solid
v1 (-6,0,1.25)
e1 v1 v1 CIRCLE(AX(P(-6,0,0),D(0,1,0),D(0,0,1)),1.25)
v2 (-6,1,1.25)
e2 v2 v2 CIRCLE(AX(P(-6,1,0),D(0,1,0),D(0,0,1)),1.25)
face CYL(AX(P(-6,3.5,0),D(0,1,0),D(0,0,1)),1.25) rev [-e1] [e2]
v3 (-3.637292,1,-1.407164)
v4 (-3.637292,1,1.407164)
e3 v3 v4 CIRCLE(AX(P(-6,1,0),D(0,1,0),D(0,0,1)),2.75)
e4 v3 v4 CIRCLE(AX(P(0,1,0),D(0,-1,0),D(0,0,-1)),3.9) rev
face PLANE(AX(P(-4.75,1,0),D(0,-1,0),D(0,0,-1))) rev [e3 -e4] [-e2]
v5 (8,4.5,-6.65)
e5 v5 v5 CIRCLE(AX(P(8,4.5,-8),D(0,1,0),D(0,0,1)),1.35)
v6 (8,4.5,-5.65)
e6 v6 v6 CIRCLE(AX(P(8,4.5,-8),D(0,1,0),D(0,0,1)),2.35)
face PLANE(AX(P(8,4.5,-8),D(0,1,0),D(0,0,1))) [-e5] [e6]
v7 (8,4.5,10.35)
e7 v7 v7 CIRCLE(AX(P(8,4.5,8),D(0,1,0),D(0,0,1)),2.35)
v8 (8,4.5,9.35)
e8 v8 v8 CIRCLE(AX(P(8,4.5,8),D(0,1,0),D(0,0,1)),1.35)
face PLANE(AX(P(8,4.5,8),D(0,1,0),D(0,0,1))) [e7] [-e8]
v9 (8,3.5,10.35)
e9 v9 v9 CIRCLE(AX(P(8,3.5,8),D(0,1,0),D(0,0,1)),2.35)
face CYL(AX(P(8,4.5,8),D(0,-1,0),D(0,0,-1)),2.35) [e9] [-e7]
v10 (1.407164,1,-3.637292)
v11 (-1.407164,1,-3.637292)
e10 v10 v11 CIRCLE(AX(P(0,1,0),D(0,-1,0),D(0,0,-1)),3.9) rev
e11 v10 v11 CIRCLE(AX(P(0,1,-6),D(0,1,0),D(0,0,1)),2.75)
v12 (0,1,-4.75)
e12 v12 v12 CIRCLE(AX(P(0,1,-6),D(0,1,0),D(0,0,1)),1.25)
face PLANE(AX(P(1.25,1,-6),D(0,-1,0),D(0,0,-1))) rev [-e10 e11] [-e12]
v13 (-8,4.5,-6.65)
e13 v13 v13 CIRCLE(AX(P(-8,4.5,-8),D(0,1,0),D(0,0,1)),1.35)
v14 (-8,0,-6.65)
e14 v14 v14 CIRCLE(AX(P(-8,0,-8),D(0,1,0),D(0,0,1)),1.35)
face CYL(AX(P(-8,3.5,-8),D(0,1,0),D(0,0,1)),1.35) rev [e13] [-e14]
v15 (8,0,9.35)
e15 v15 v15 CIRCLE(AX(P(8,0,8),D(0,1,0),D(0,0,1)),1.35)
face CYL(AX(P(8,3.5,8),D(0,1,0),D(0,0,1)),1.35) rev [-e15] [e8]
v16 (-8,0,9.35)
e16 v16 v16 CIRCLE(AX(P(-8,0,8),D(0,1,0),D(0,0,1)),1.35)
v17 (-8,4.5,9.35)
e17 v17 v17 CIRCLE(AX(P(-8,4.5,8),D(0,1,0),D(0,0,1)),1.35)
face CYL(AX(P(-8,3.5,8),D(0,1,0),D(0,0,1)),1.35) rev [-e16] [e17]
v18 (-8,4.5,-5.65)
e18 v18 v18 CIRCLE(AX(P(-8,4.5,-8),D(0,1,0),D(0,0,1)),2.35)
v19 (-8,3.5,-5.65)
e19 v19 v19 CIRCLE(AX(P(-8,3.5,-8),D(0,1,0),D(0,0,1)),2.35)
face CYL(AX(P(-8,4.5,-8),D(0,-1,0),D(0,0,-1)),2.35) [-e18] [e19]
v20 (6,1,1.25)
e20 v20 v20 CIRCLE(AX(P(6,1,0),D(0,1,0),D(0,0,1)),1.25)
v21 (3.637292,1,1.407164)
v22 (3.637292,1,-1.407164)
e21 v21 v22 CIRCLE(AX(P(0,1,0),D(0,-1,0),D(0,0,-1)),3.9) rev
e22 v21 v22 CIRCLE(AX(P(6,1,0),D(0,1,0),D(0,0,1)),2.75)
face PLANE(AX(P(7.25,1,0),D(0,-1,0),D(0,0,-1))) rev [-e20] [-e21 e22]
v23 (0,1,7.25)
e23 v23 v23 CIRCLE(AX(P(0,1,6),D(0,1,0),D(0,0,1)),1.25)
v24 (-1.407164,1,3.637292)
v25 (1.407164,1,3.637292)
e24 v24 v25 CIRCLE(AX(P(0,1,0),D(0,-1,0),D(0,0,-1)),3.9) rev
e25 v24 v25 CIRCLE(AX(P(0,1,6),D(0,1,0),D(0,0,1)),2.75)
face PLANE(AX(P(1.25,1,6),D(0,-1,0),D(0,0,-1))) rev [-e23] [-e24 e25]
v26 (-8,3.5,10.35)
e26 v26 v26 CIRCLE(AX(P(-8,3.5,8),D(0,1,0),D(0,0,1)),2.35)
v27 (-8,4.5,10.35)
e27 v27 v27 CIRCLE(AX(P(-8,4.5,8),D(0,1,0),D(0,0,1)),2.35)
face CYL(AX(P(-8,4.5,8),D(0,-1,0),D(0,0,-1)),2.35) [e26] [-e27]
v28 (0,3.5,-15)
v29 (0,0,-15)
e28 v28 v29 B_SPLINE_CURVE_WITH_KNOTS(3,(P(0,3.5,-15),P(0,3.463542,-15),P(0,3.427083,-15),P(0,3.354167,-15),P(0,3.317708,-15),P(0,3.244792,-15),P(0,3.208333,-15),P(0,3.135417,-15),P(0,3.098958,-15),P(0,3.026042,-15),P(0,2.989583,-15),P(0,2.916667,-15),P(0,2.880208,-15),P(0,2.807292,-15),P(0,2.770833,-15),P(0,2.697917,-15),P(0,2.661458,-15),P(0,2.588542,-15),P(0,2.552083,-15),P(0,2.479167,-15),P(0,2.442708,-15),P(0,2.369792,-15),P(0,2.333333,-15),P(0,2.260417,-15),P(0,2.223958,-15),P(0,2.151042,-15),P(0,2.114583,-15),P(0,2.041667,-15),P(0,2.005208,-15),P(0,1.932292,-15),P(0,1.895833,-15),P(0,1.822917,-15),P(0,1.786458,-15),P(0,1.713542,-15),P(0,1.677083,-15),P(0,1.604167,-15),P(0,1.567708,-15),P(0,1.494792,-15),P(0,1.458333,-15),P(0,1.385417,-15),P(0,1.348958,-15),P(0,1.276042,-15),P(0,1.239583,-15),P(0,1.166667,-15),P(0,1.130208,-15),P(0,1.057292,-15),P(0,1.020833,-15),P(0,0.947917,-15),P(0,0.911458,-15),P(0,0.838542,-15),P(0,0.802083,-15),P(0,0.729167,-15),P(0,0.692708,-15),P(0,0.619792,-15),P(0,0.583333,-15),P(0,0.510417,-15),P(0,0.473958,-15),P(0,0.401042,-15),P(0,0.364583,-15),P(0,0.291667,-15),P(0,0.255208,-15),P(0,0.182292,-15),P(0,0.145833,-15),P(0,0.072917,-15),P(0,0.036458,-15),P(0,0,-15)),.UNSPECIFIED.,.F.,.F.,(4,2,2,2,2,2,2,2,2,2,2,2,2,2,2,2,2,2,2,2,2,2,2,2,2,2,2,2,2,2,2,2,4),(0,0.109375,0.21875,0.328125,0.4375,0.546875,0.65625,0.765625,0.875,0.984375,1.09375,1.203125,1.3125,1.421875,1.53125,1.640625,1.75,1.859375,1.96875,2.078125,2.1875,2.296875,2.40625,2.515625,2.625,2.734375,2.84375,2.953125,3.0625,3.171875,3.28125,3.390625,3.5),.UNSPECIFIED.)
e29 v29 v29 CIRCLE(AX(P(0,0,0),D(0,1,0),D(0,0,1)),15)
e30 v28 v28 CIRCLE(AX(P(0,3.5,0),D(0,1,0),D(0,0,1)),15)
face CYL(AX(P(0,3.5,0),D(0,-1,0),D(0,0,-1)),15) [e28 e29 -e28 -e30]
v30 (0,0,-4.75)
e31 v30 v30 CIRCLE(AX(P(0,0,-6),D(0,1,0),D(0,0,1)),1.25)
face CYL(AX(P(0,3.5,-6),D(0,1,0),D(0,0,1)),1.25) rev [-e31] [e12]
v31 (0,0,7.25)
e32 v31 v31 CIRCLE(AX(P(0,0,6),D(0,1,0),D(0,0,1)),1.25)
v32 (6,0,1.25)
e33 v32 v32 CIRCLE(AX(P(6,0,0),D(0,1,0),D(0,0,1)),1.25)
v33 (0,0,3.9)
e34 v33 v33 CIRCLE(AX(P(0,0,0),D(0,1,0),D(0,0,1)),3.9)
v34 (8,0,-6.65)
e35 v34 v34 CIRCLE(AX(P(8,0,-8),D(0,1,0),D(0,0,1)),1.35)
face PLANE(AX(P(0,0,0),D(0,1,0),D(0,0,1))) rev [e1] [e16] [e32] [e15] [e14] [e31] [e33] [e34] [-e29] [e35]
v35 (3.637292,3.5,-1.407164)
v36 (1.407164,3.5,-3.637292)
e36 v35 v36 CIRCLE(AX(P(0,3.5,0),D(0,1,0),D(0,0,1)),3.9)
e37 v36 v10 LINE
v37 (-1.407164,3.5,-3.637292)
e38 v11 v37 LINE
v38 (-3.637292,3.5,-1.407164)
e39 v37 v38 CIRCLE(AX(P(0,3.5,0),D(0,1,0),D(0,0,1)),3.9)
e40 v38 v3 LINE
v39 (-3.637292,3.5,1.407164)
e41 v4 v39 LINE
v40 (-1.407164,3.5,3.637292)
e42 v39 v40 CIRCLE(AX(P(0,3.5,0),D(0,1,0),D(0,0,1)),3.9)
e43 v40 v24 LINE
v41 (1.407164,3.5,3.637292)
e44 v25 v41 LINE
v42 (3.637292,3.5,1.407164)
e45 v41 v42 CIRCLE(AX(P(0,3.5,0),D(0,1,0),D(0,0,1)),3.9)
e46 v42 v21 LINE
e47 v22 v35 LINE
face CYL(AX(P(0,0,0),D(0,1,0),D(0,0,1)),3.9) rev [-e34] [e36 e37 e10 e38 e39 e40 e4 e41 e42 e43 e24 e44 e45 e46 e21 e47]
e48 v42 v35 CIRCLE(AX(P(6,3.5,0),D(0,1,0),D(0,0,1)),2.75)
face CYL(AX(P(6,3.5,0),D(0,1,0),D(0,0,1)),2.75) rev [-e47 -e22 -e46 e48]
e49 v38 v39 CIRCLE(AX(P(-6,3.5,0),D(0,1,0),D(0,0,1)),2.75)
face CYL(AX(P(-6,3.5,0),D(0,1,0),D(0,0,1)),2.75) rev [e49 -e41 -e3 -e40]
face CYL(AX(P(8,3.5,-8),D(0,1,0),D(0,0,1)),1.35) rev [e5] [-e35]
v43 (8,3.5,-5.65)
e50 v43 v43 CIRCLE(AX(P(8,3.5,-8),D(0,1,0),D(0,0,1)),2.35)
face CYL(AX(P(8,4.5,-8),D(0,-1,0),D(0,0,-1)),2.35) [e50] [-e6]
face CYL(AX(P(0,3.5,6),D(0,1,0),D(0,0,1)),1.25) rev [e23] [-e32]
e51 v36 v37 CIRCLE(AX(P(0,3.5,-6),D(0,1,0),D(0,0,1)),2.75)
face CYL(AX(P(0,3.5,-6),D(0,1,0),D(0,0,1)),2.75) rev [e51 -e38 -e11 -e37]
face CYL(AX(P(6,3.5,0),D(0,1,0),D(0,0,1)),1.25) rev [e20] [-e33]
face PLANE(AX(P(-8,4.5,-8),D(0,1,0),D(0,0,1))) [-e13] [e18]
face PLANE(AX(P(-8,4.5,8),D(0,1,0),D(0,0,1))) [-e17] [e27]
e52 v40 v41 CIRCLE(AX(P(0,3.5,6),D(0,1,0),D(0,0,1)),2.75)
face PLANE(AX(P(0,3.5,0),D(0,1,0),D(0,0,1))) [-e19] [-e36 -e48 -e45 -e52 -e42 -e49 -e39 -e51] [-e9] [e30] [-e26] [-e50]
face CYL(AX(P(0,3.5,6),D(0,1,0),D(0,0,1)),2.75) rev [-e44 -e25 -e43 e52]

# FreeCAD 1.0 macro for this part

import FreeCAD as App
import Part
import Sketcher

doc = App.newDocument("Part")
params = doc.addObject("Spreadsheet::Sheet", "Params")
for row, (alias, value) in enumerate([
    ("sketch1_diameter", "30 mm"),
    ("pad1_length", "3.5 mm"),
    ("sketch2_diameter", "7.8 mm"),
    ("sketch3_diameter", "2.5 mm"),
    ("hole_diameter", "2.5 mm"),
    ("hole_cbore_diameter", "5.5 mm"),
    ("hole_cbore_depth", "2.5 mm"),
    ("sketch4_diameter", "2.7 mm"),
    ("hole2_diameter", "2.7 mm"),
    ("sketch5_diameter", "4.7 mm"),
    ("sketch5_diameter2", "2.7 mm"),
    ("pad2_length", "1 mm"),
], start=1):
    params.set(f"A{row}", alias)
    params.set(f"B{row}", "=" + value)
    params.setAlias(f"B{row}", alias)

body = doc.addObject("PartDesign::Body", "Body")

sketch1 = body.newObject("Sketcher::SketchObject", "Sketch")
sketch1.AttachmentSupport = (doc.getObject("XZ_Plane"), [""])
sketch1.MapMode = "FlatFace"
sketch1.addGeometry(Part.Circle(App.Vector(0, 0, 0), App.Vector(0, 0, 1), 15), False)
sketch1.addConstraint(Sketcher.Constraint("Coincident", 0, 3, -1, 1))
sketch1.addConstraint(Sketcher.Constraint("Diameter", 0, 30.0))
sketch1.setExpression("Constraints[1]", "Params.sketch1_diameter")
pad1 = body.newObject("PartDesign::Pad", "Pad")
pad1.Profile = sketch1
pad1.setExpression("Length", "Params.pad1_length")
pad1.Reversed = True

sketch2 = body.newObject("Sketcher::SketchObject", "Sketch001")
sketch2.AttachmentSupport = (doc.getObject("XZ_Plane"), [""])
sketch2.MapMode = "FlatFace"
sketch2.AttachmentOffset = App.Placement(App.Vector(0, 0, -3.5), App.Rotation())
sketch2.addGeometry(Part.Circle(App.Vector(0, 0, 0), App.Vector(0, 0, 1), 3.9), False)
sketch2.addConstraint(Sketcher.Constraint("Coincident", 0, 3, -1, 1))
sketch2.addConstraint(Sketcher.Constraint("Diameter", 0, 7.8))
sketch2.setExpression("Constraints[1]", "Params.sketch2_diameter")
pocket1 = body.newObject("PartDesign::Pocket", "Pocket")
pocket1.Profile = sketch2
pocket1.Type = "ThroughAll"
pocket1.Reversed = True

sketch3 = body.newObject("Sketcher::SketchObject", "Sketch002")
sketch3.AttachmentSupport = (doc.getObject("XZ_Plane"), [""])
sketch3.MapMode = "FlatFace"
sketch3.AttachmentOffset = App.Placement(App.Vector(0, 0, -3.5), App.Rotation())
sketch3.addGeometry(Part.Circle(App.Vector(-6, 0, 0), App.Vector(0, 0, 1), 1.2), False)
sketch3.addGeometry(Part.Circle(App.Vector(0, -6, 0), App.Vector(0, 0, 1), 1.2), False)
sketch3.addGeometry(Part.Circle(App.Vector(6, 0, 0), App.Vector(0, 0, 1), 1.2), False)
sketch3.addGeometry(Part.Circle(App.Vector(0, 6, 0), App.Vector(0, 0, 1), 1.2), False)
sketch3.addConstraint(Sketcher.Constraint("Equal", 0, 1))
sketch3.addConstraint(Sketcher.Constraint("Equal", 1, 2))
sketch3.addConstraint(Sketcher.Constraint("Equal", 2, 3))
sketch3.addConstraint(Sketcher.Constraint("Symmetric", 0, 3, 2, 3, -1, 1))
sketch3.addConstraint(Sketcher.Constraint("Symmetric", 1, 3, 3, 3, -1, 1))
sketch3.addConstraint(Sketcher.Constraint("PointOnObject", 0, 3, -1))
sketch3.addConstraint(Sketcher.Constraint("PointOnObject", 1, 3, -2))
sketch3.addConstraint(Sketcher.Constraint("Diameter", 0, 2.5))
sketch3.addConstraint(Sketcher.Constraint("DistanceX", 0, 3, -1, 1, 6.0))
sketch3.addConstraint(Sketcher.Constraint("DistanceY", 1, 3, -1, 1, 6.0))
sketch3.setExpression("Constraints[7]", "Params.sketch3_diameter")
doc.recompute()
hole = body.newObject("PartDesign::Hole", "Hole")
hole.Profile = sketch3
hole.ThreadType = "None"
hole.setExpression("Diameter", "Params.hole_diameter")
hole.DepthType = "ThroughAll"
hole.HoleCutType = "Counterbore"
hole.setExpression("HoleCutDiameter", "Params.hole_cbore_diameter")
hole.setExpression("HoleCutDepth", "Params.hole_cbore_depth")
hole.Reversed = True

sketch4 = body.newObject("Sketcher::SketchObject", "Sketch003")
sketch4.AttachmentSupport = (doc.getObject("XZ_Plane"), [""])
sketch4.MapMode = "FlatFace"
sketch4.AttachmentOffset = App.Placement(App.Vector(0, 0, -3.5), App.Rotation())
sketch4.addGeometry(Part.Circle(App.Vector(-8, -8, 0), App.Vector(0, 0, 1), 1.4), False)
sketch4.addGeometry(Part.Circle(App.Vector(8, -8, 0), App.Vector(0, 0, 1), 1.4), False)
sketch4.addGeometry(Part.Circle(App.Vector(8, 8, 0), App.Vector(0, 0, 1), 1.4), False)
sketch4.addGeometry(Part.Circle(App.Vector(-8, 8, 0), App.Vector(0, 0, 1), 1.4), False)
sketch4.addConstraint(Sketcher.Constraint("Equal", 0, 1))
sketch4.addConstraint(Sketcher.Constraint("Equal", 1, 2))
sketch4.addConstraint(Sketcher.Constraint("Equal", 2, 3))
sketch4.addConstraint(Sketcher.Constraint("Symmetric", 0, 3, 2, 3, -1, 1))
sketch4.addConstraint(Sketcher.Constraint("Symmetric", 1, 3, 3, 3, -1, 1))
sketch4.addConstraint(Sketcher.Constraint("Symmetric", 0, 3, 1, 3, -2))
sketch4.addConstraint(Sketcher.Constraint("Diameter", 0, 2.7))
sketch4.addConstraint(Sketcher.Constraint("DistanceX", 0, 3, -1, 1, 8.0))
sketch4.addConstraint(Sketcher.Constraint("DistanceY", 0, 3, -1, 1, 8.0))
sketch4.setExpression("Constraints[6]", "Params.sketch4_diameter")
doc.recompute()
hole2 = body.newObject("PartDesign::Hole", "Hole001")
hole2.Profile = sketch4
hole2.ThreadType = "None"
hole2.setExpression("Diameter", "Params.hole2_diameter")
hole2.DepthType = "ThroughAll"
hole2.Reversed = True

sketch5 = body.newObject("Sketcher::SketchObject", "Sketch004")
sketch5.AttachmentSupport = (doc.getObject("XZ_Plane"), [""])
sketch5.MapMode = "FlatFace"
sketch5.AttachmentOffset = App.Placement(App.Vector(0, 0, -3.5), App.Rotation())
sketch5.addGeometry(Part.Circle(App.Vector(8, 8, 0), App.Vector(0, 0, 1), 2.4), False)
sketch5.addGeometry(Part.Circle(App.Vector(8, 8, 0), App.Vector(0, 0, 1), 1.4), False)
sketch5.addGeometry(Part.Circle(App.Vector(8, -8, 0), App.Vector(0, 0, 1), 2.4), False)
sketch5.addGeometry(Part.Circle(App.Vector(8, -8, 0), App.Vector(0, 0, 1), 1.4), False)
sketch5.addGeometry(Part.Circle(App.Vector(-8, 8, 0), App.Vector(0, 0, 1), 2.4), False)
sketch5.addGeometry(Part.Circle(App.Vector(-8, 8, 0), App.Vector(0, 0, 1), 1.4), False)
sketch5.addGeometry(Part.Circle(App.Vector(-8, -8, 0), App.Vector(0, 0, 1), 2.4), False)
sketch5.addGeometry(Part.Circle(App.Vector(-8, -8, 0), App.Vector(0, 0, 1), 1.4), False)
sketch5.addConstraint(Sketcher.Constraint("Coincident", 1, 3, 0, 3))
sketch5.addConstraint(Sketcher.Constraint("Coincident", 3, 3, 2, 3))
sketch5.addConstraint(Sketcher.Constraint("Coincident", 5, 3, 4, 3))
sketch5.addConstraint(Sketcher.Constraint("Coincident", 7, 3, 6, 3))
sketch5.addConstraint(Sketcher.Constraint("Equal", 0, 2))
sketch5.addConstraint(Sketcher.Constraint("Equal", 1, 3))
sketch5.addConstraint(Sketcher.Constraint("Equal", 2, 4))
sketch5.addConstraint(Sketcher.Constraint("Equal", 3, 5))
sketch5.addConstraint(Sketcher.Constraint("Equal", 4, 6))
sketch5.addConstraint(Sketcher.Constraint("Equal", 5, 7))
sketch5.addConstraint(Sketcher.Constraint("Symmetric", 2, 3, 4, 3, -1, 1))
sketch5.addConstraint(Sketcher.Constraint("Symmetric", 0, 3, 6, 3, -1, 1))
sketch5.addConstraint(Sketcher.Constraint("Symmetric", 0, 3, 4, 3, -2))
sketch5.addConstraint(Sketcher.Constraint("Diameter", 0, 4.7))
sketch5.addConstraint(Sketcher.Constraint("Diameter", 1, 2.7))
sketch5.addConstraint(Sketcher.Constraint("DistanceX", -1, 1, 0, 3, 8.0))
sketch5.addConstraint(Sketcher.Constraint("DistanceY", -1, 1, 0, 3, 8.0))
sketch5.setExpression("Constraints[13]", "Params.sketch5_diameter")
sketch5.setExpression("Constraints[14]", "Params.sketch5_diameter2")
pad2 = body.newObject("PartDesign::Pad", "Pad001")
pad2.Profile = sketch5
pad2.setExpression("Length", "Params.pad2_length")
pad2.Reversed = True

doc.recompute()
